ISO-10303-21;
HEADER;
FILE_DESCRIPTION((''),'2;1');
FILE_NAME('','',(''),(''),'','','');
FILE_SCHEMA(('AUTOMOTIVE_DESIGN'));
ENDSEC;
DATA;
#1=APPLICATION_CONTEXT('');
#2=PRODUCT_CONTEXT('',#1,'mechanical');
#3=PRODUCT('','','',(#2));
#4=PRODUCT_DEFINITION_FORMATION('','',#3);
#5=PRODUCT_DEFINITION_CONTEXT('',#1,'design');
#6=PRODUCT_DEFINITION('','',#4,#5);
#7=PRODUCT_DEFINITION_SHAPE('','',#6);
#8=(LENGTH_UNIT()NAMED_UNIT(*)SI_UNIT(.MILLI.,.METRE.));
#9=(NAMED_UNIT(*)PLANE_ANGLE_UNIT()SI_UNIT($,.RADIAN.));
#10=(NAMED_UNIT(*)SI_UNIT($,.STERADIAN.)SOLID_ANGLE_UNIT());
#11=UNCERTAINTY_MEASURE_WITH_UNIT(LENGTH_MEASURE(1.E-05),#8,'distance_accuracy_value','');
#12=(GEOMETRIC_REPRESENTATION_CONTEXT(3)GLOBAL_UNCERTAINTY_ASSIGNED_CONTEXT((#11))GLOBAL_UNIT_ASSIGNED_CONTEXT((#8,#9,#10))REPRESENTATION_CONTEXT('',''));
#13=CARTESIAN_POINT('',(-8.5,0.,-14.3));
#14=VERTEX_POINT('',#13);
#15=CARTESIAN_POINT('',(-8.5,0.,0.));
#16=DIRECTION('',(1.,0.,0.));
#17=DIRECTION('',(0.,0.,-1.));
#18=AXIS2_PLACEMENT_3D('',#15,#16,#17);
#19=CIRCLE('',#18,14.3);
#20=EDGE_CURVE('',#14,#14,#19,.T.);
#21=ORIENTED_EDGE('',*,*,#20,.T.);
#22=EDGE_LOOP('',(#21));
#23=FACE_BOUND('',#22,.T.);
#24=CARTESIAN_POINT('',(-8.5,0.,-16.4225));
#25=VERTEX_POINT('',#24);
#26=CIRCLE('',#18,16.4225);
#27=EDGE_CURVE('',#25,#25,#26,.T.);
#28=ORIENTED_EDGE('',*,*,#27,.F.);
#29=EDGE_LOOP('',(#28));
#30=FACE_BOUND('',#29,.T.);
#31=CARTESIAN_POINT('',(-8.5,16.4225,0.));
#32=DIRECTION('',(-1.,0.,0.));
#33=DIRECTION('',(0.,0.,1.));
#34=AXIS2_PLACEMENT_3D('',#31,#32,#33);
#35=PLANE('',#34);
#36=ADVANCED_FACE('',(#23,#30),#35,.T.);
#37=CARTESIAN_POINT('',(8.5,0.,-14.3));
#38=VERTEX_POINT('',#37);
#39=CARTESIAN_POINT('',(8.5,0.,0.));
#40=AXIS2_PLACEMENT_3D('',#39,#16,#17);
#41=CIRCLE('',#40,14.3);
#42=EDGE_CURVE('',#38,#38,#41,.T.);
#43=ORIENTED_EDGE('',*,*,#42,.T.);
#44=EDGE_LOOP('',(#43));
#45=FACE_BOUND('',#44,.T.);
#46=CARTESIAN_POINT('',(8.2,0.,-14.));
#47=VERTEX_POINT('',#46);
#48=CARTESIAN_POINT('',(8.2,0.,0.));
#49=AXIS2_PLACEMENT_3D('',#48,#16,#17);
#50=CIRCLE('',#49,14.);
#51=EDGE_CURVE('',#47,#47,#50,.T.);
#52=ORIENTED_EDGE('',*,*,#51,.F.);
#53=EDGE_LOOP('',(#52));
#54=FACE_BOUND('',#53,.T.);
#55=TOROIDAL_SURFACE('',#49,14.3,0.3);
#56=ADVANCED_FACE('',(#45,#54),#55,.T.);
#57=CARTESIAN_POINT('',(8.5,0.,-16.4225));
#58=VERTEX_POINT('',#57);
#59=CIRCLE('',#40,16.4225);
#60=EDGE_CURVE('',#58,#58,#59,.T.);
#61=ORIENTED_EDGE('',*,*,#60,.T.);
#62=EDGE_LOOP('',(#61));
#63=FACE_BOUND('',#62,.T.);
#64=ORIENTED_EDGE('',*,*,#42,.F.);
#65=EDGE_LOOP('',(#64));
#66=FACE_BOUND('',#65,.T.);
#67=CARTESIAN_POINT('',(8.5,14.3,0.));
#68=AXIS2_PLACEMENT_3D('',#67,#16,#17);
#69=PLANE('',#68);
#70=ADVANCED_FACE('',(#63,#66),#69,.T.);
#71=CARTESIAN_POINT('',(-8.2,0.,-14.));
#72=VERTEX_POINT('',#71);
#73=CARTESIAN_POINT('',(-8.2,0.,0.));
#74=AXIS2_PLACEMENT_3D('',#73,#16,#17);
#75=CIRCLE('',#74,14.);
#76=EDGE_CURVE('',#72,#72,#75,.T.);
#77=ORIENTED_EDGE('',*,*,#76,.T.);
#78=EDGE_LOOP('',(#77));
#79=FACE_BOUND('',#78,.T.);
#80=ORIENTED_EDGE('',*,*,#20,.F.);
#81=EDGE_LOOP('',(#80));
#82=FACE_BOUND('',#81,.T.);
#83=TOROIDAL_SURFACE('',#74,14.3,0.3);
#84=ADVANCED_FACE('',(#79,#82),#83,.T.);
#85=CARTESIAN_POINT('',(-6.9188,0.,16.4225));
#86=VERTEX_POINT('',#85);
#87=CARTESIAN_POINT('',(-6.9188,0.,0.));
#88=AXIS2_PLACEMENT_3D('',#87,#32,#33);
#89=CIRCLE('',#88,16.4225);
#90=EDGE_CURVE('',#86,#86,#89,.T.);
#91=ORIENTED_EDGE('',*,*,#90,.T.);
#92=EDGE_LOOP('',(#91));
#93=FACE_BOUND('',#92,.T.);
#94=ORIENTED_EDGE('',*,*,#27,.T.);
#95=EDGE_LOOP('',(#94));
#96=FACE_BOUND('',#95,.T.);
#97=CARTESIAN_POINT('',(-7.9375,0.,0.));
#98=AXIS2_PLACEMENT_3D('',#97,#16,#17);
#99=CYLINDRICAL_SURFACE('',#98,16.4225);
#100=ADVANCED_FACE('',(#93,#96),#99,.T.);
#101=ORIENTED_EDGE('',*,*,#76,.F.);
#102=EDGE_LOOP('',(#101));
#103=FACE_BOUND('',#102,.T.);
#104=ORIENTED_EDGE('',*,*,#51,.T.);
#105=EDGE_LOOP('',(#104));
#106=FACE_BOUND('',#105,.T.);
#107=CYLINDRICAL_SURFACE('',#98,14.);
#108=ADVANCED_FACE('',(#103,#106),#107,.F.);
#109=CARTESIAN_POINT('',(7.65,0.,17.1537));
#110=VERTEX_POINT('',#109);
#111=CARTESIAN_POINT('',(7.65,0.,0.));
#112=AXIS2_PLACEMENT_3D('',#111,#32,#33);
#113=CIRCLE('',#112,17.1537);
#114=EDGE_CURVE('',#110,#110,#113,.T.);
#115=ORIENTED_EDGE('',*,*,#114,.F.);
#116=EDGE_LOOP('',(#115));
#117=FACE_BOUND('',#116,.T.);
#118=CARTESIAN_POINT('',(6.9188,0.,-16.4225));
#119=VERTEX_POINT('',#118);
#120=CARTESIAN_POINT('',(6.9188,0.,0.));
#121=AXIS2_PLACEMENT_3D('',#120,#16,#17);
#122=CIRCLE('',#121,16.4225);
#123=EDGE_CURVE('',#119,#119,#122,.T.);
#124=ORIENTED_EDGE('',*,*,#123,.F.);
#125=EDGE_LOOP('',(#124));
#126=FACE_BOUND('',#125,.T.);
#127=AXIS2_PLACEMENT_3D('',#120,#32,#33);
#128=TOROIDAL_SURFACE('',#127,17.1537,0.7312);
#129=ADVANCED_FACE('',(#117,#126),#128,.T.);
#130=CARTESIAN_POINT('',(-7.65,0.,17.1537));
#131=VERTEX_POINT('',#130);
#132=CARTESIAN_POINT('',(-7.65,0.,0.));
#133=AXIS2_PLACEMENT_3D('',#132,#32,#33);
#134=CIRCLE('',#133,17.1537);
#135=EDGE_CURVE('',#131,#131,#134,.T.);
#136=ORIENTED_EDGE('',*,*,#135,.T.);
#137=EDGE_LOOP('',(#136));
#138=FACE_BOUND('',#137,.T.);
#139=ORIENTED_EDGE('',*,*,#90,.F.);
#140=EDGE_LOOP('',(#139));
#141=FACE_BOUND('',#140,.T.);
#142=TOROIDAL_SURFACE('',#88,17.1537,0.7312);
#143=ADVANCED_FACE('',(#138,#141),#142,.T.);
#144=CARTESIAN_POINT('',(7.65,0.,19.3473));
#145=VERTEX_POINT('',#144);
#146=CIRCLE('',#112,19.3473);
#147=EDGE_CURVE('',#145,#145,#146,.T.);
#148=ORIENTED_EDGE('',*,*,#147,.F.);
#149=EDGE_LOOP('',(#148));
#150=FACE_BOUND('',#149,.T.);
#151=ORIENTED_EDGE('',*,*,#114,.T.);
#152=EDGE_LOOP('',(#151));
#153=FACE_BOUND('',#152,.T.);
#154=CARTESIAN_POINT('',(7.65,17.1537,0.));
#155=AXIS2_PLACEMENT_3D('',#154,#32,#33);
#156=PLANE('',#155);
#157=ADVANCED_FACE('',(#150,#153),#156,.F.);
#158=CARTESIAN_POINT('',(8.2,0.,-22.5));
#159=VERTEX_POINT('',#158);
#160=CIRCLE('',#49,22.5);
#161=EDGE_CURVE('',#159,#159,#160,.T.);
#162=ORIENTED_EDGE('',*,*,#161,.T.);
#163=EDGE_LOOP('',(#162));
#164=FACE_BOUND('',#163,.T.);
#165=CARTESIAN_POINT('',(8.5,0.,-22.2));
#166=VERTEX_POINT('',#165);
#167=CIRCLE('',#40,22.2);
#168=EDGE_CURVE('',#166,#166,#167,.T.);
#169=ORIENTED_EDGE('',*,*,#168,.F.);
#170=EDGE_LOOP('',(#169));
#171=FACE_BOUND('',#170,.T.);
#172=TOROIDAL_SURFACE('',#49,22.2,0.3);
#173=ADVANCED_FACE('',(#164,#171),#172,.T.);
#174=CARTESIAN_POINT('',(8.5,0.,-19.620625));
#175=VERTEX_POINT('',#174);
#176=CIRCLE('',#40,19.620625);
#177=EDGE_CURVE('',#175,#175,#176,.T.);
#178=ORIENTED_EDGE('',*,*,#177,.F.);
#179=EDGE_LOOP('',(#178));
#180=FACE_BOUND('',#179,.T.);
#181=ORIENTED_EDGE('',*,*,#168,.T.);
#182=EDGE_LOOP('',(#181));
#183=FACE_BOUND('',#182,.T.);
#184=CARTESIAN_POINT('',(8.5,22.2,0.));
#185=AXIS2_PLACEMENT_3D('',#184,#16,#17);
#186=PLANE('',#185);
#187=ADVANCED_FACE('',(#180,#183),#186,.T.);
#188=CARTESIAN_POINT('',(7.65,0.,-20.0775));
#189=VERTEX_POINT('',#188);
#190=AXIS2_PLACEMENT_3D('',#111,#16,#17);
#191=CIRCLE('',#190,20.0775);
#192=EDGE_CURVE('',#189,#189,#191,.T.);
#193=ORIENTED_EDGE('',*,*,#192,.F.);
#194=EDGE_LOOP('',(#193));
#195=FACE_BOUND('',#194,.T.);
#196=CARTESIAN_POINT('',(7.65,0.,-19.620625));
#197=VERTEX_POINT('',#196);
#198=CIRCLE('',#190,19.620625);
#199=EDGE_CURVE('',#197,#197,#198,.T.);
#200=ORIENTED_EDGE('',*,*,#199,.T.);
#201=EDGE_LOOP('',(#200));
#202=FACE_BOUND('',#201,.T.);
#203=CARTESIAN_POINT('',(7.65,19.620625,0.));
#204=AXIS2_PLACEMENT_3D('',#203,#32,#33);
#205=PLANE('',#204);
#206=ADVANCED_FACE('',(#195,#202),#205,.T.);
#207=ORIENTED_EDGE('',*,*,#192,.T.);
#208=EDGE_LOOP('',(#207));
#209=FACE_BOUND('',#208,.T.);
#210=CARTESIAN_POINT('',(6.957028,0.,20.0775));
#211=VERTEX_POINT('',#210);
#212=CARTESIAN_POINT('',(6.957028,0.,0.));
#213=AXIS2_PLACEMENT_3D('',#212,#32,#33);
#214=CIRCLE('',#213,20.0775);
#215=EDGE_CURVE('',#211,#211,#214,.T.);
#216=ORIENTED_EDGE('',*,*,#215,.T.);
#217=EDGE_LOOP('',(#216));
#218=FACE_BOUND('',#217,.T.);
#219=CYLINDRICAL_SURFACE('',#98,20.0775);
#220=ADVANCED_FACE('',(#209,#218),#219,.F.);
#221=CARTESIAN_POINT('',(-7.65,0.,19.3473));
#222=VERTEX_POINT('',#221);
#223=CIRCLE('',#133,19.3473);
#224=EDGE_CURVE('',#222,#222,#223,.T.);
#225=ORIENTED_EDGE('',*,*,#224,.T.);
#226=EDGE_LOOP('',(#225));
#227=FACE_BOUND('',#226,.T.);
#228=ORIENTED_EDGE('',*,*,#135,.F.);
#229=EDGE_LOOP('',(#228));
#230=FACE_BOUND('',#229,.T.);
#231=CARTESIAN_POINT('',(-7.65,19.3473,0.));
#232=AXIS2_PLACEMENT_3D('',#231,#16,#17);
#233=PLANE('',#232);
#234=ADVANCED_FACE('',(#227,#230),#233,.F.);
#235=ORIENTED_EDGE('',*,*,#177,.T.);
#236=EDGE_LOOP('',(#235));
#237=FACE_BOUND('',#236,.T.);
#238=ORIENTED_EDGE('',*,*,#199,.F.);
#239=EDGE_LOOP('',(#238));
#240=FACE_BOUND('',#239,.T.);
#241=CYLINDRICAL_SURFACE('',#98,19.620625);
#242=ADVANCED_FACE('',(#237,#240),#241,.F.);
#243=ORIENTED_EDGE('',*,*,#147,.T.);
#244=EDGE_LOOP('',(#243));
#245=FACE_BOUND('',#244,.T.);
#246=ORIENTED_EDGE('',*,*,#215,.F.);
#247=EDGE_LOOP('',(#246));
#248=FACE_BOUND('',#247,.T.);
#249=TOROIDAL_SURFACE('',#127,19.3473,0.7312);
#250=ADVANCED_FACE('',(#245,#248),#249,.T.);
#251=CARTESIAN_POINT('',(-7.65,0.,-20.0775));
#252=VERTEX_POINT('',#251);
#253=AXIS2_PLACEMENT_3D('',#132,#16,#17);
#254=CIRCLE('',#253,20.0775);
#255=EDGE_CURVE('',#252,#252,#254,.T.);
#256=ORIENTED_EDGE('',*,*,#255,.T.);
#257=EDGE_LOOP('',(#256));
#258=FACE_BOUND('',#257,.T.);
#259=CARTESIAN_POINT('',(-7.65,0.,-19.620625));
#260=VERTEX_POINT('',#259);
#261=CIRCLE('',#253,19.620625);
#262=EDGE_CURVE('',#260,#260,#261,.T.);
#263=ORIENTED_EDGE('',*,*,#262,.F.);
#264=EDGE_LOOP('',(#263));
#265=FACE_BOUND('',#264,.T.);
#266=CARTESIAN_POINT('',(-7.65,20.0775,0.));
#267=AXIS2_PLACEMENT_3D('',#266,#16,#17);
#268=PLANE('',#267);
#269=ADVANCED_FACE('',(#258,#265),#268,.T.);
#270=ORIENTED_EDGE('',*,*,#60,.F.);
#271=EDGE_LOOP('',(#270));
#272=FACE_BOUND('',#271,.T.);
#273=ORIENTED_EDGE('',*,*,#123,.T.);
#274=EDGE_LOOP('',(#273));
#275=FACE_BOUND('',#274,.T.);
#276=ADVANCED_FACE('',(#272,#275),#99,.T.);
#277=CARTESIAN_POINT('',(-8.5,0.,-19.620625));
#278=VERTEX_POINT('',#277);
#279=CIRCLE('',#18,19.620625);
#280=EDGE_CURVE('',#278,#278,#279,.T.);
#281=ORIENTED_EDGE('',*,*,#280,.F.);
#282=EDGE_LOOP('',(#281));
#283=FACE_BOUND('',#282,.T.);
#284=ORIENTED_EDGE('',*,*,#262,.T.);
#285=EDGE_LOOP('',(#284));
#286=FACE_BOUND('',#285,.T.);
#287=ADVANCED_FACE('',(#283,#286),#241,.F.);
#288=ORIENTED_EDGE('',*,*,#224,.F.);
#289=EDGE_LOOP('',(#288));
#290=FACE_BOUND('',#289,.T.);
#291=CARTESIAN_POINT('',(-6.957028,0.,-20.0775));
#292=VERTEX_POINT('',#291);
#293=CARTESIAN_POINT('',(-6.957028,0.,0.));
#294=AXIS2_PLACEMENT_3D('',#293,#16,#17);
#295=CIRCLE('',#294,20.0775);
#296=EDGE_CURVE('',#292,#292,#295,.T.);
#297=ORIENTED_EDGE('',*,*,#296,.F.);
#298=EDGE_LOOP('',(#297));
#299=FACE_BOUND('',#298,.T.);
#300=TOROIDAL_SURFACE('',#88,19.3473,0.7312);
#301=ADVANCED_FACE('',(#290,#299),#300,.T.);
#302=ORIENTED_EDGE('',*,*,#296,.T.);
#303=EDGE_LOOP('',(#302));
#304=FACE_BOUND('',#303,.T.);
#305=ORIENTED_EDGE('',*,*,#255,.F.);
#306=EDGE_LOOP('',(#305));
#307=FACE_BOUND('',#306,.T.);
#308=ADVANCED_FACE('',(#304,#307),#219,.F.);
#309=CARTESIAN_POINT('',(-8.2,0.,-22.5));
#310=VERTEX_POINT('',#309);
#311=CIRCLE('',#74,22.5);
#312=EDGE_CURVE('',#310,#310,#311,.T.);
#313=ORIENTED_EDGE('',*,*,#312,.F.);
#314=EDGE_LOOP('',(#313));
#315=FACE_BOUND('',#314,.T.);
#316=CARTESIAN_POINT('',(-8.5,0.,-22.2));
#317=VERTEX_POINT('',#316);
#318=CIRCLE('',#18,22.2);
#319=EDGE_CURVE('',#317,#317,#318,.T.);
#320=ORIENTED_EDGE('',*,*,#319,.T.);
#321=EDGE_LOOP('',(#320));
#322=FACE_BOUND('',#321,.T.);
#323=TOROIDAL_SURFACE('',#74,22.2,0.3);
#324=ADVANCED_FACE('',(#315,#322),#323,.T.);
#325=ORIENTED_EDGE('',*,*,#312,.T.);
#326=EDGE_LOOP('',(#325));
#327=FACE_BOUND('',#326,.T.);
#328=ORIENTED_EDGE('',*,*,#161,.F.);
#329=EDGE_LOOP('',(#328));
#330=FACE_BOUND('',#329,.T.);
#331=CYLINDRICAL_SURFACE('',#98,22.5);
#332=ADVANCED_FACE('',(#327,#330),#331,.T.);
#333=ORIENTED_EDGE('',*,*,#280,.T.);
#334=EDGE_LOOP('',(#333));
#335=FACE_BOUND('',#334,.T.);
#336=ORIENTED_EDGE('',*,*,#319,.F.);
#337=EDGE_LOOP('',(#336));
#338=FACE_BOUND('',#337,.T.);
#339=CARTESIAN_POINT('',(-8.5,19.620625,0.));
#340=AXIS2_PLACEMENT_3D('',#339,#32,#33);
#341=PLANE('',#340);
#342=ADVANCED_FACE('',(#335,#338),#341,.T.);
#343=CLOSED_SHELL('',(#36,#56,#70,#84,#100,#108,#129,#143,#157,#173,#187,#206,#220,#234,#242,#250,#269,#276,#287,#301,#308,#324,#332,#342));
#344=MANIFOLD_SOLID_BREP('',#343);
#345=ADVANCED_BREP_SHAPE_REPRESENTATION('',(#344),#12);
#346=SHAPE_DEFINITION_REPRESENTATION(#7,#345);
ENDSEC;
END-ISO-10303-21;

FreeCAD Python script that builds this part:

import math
import FreeCAD as App
import Part
import Sketcher

doc = App.newDocument("Part")
params = doc.addObject("Spreadsheet::Sheet", "Params")
for row, (alias, value) in enumerate([
    ("sketch1_radius", "0.3 mm"),
    ("sketch1_width", "15.3 mm"),
    ("sketch1_width2", "16.4 mm"),
    ("revolution_angle", "360 deg"),
    ("revolution2_angle", "360 deg"),
    ("sketch3_radius", "0.3 mm"),
    ("sketch3_width", "17 mm"),
    ("revolution3_angle", "360 deg"),
], start=1):
    params.set(f"A{row}", alias)
    params.set(f"B{row}", "=" + value)
    params.setAlias(f"B{row}", alias)

body = doc.addObject("PartDesign::Body", "Body")

# Sketch on XY plane
sketch1 = body.newObject("Sketcher::SketchObject", "Sketch")
sketch1.AttachmentSupport = (doc.getObject("XY_Plane"), [""])
sketch1.MapMode = "FlatFace"
sketch1.addGeometry(Part.LineSegment(App.Vector(-7.65, 19.62, 0), App.Vector(-7.65, 20.08, 0)), False)
sketch1.addGeometry(Part.LineSegment(App.Vector(-7.65, 20.08, 0), App.Vector(7.65, 20.08, 0)), False)
sketch1.addGeometry(Part.LineSegment(App.Vector(7.65, 20.08, 0), App.Vector(7.65, 19.62, 0)), False)
sketch1.addGeometry(Part.LineSegment(App.Vector(7.65, 19.62, 0), App.Vector(8.5, 19.62, 0)), False)
sketch1.addGeometry(Part.LineSegment(App.Vector(8.5, 19.62, 0), App.Vector(8.5, 22.2, 0)), False)
sketch1.addGeometry(Part.ArcOfCircle(Part.Circle(App.Vector(8.2, 22.2, 0), App.Vector(0, 0, 1), 0.3), math.radians(0), math.radians(90)), False)
sketch1.addGeometry(Part.LineSegment(App.Vector(8.2, 22.5, 0), App.Vector(-8.2, 22.5, 0)), False)
sketch1.addGeometry(Part.ArcOfCircle(Part.Circle(App.Vector(-8.2, 22.2, 0), App.Vector(0, 0, 1), 0.3), math.radians(90), math.radians(180)), False)
sketch1.addGeometry(Part.LineSegment(App.Vector(-8.5, 22.2, 0), App.Vector(-8.5, 19.62, 0)), False)
sketch1.addGeometry(Part.LineSegment(App.Vector(-8.5, 19.62, 0), App.Vector(-7.65, 19.62, 0)), False)
sketch1.addConstraint(Sketcher.Constraint("Coincident", 0, 2, 1, 1))
sketch1.addConstraint(Sketcher.Constraint("Coincident", 1, 2, 2, 1))
sketch1.addConstraint(Sketcher.Constraint("Coincident", 2, 2, 3, 1))
sketch1.addConstraint(Sketcher.Constraint("Coincident", 3, 2, 4, 1))
sketch1.addConstraint(Sketcher.Constraint("Tangent", 4, 2, 5, 1))
sketch1.addConstraint(Sketcher.Constraint("Tangent", 5, 2, 6, 1))
sketch1.addConstraint(Sketcher.Constraint("Tangent", 6, 2, 7, 1))
sketch1.addConstraint(Sketcher.Constraint("Tangent", 7, 2, 8, 1))
sketch1.addConstraint(Sketcher.Constraint("Coincident", 8, 2, 9, 1))
sketch1.addConstraint(Sketcher.Constraint("Coincident", 9, 2, 0, 1))
sketch1.addConstraint(Sketcher.Constraint("Vertical", 0))
sketch1.addConstraint(Sketcher.Constraint("Horizontal", 1))
sketch1.addConstraint(Sketcher.Constraint("Vertical", 2))
sketch1.addConstraint(Sketcher.Constraint("Horizontal", 3))
sketch1.addConstraint(Sketcher.Constraint("Vertical", 4))
sketch1.addConstraint(Sketcher.Constraint("Horizontal", 6))
sketch1.addConstraint(Sketcher.Constraint("Vertical", 8))
sketch1.addConstraint(Sketcher.Constraint("Horizontal", 9))
sketch1.addConstraint(Sketcher.Constraint("Equal", 5, 7))
sketch1.addConstraint(Sketcher.Constraint("Symmetric", 3, 2, 8, 2, -2))
sketch1.addConstraint(Sketcher.Constraint("Equal", 3, 9))
sketch1.addConstraint(Sketcher.Constraint("Radius", 5, 0.3))
sketch1.addConstraint(Sketcher.Constraint("DistanceX", 1, 1, 1, 2, 15.3))
sketch1.addConstraint(Sketcher.Constraint("DistanceX", 6, 2, 6, 1, 16.4))
sketch1.addConstraint(Sketcher.Constraint("DistanceY", -1, 1, 5, 3, 22.2))
sketch1.addConstraint(Sketcher.Constraint("DistanceY", -1, 1, 0, 2, 20.0775))
sketch1.addConstraint(Sketcher.Constraint("DistanceY", 0, 1, 0, 2, 0.456875))
sketch1.setExpression("Constraints[21]", "Params.sketch1_radius")
sketch1.setExpression("Constraints[22]", "Params.sketch1_width")
sketch1.setExpression("Constraints[23]", "Params.sketch1_width2")
revolution = body.newObject("PartDesign::Revolution", "Revolution")
revolution.Profile = sketch1
revolution.ReferenceAxis = (sketch1, ["H_Axis"])
revolution.setExpression("Angle", "Params.revolution_angle")

# Sketch on XY plane
sketch2 = body.newObject("Sketcher::SketchObject", "Sketch001")
sketch2.AttachmentSupport = (doc.getObject("XY_Plane"), [""])
sketch2.MapMode = "FlatFace"
sketch2.addGeometry(Part.LineSegment(App.Vector(-7.7, 19.3, 0), App.Vector(-7.7, 17.2, 0)), False)
sketch2.addGeometry(Part.ArcOfCircle(Part.Circle(App.Vector(-6.9, 17.2, 0), App.Vector(0, 0, 1), 0.7), math.radians(-180), math.radians(-90)), False)
sketch2.addGeometry(Part.LineSegment(App.Vector(-6.9, 16.4, 0), App.Vector(6.9, 16.4, 0)), False)
sketch2.addGeometry(Part.ArcOfCircle(Part.Circle(App.Vector(6.9, 17.2, 0), App.Vector(0, 0, 1), 0.7), math.radians(-90), math.radians(0)), False)
sketch2.addGeometry(Part.LineSegment(App.Vector(7.7, 17.2, 0), App.Vector(7.7, 19.3, 0)), False)
sketch2.addGeometry(Part.ArcOfCircle(Part.Circle(App.Vector(6.9, 19.3, 0), App.Vector(0, 0, 1), 0.7), math.radians(0), math.radians(90)), False)
sketch2.addGeometry(Part.LineSegment(App.Vector(6.9, 20.1, 0), App.Vector(-6.9, 20.1, 0)), False)
sketch2.addGeometry(Part.ArcOfCircle(Part.Circle(App.Vector(-6.9, 19.3, 0), App.Vector(0, 0, 1), 0.7), math.radians(90), math.radians(180)), False)
sketch2.addConstraint(Sketcher.Constraint("Tangent", 0, 2, 1, 1))
sketch2.addConstraint(Sketcher.Constraint("Tangent", 1, 2, 2, 1))
sketch2.addConstraint(Sketcher.Constraint("Tangent", 2, 2, 3, 1))
sketch2.addConstraint(Sketcher.Constraint("Tangent", 3, 2, 4, 1))
sketch2.addConstraint(Sketcher.Constraint("Tangent", 4, 2, 5, 1))
sketch2.addConstraint(Sketcher.Constraint("Tangent", 5, 2, 6, 1))
sketch2.addConstraint(Sketcher.Constraint("Tangent", 6, 2, 7, 1))
sketch2.addConstraint(Sketcher.Constraint("Tangent", 7, 2, 0, 1))
sketch2.addConstraint(Sketcher.Constraint("Vertical", 0))
sketch2.addConstraint(Sketcher.Constraint("Horizontal", 2))
sketch2.addConstraint(Sketcher.Constraint("Vertical", 4))
sketch2.addConstraint(Sketcher.Constraint("Horizontal", 6))
sketch2.addConstraint(Sketcher.Constraint("Equal", 1, 3))
sketch2.addConstraint(Sketcher.Constraint("Equal", 3, 5))
sketch2.addConstraint(Sketcher.Constraint("Equal", 5, 7))
sketch2.addConstraint(Sketcher.Constraint("Radius", 1, 0.7312))
sketch2.addConstraint(Sketcher.Constraint("DistanceX", 0, 2, -1, 1, 7.65))
sketch2.addConstraint(Sketcher.Constraint("DistanceX", -1, 1, 3, 2, 7.65))
sketch2.addConstraint(Sketcher.Constraint("DistanceY", 0, 2, 0, 1, 2.1936))
sketch2.addConstraint(Sketcher.Constraint("DistanceY", -1, 1, 1, 3, 17.1537))
revolution2 = body.newObject("PartDesign::Revolution", "Revolution001")
revolution2.Profile = sketch2
revolution2.ReferenceAxis = (sketch2, ["H_Axis"])
revolution2.setExpression("Angle", "Params.revolution2_angle")

# Sketch on XY plane
sketch3 = body.newObject("Sketcher::SketchObject", "Sketch002")
sketch3.AttachmentSupport = (doc.getObject("XY_Plane"), [""])
sketch3.MapMode = "FlatFace"
sketch3.addGeometry(Part.LineSegment(App.Vector(-8.5, 16.42, 0), App.Vector(-8.5, 14.3, 0)), False)
sketch3.addGeometry(Part.ArcOfCircle(Part.Circle(App.Vector(-8.2, 14.3, 0), App.Vector(0, 0, 1), 0.3), math.radians(-180), math.radians(-90)), False)
sketch3.addGeometry(Part.LineSegment(App.Vector(-8.2, 14, 0), App.Vector(8.2, 14, 0)), False)
sketch3.addGeometry(Part.ArcOfCircle(Part.Circle(App.Vector(8.2, 14.3, 0), App.Vector(0, 0, 1), 0.3), math.radians(-90), math.radians(0)), False)
sketch3.addGeometry(Part.LineSegment(App.Vector(8.5, 14.3, 0), App.Vector(8.5, 16.42, 0)), False)
sketch3.addGeometry(Part.LineSegment(App.Vector(8.5, 16.42, 0), App.Vector(-8.5, 16.42, 0)), False)
sketch3.addConstraint(Sketcher.Constraint("Tangent", 0, 2, 1, 1))
sketch3.addConstraint(Sketcher.Constraint("Tangent", 1, 2, 2, 1))
sketch3.addConstraint(Sketcher.Constraint("Tangent", 2, 2, 3, 1))
sketch3.addConstraint(Sketcher.Constraint("Tangent", 3, 2, 4, 1))
sketch3.addConstraint(Sketcher.Constraint("Coincident", 4, 2, 5, 1))
sketch3.addConstraint(Sketcher.Constraint("Coincident", 5, 2, 0, 1))
sketch3.addConstraint(Sketcher.Constraint("Vertical", 0))
sketch3.addConstraint(Sketcher.Constraint("Horizontal", 2))
sketch3.addConstraint(Sketcher.Constraint("Vertical", 4))
sketch3.addConstraint(Sketcher.Constraint("Horizontal", 5))
sketch3.addConstraint(Sketcher.Constraint("Equal", 1, 3))
sketch3.addConstraint(Sketcher.Constraint("Radius", 1, 0.3))
sketch3.addConstraint(Sketcher.Constraint("DistanceX", 5, 2, 5, 1, 17.0))
sketch3.addConstraint(Sketcher.Constraint("DistanceY", -1, 1, 1, 2, 14.0))
sketch3.addConstraint(Sketcher.Constraint("DistanceX", 1, 3, -1, 1, 8.2))
sketch3.addConstraint(Sketcher.Constraint("DistanceY", 0, 2, 0, 1, 2.1225))
sketch3.setExpression("Constraints[11]", "Params.sketch3_radius")
sketch3.setExpression("Constraints[12]", "Params.sketch3_width")
revolution3 = body.newObject("PartDesign::Revolution", "Revolution002")
revolution3.Profile = sketch3
revolution3.ReferenceAxis = (sketch3, ["H_Axis"])
revolution3.setExpression("Angle", "Params.revolution3_angle")

doc.recompute()
